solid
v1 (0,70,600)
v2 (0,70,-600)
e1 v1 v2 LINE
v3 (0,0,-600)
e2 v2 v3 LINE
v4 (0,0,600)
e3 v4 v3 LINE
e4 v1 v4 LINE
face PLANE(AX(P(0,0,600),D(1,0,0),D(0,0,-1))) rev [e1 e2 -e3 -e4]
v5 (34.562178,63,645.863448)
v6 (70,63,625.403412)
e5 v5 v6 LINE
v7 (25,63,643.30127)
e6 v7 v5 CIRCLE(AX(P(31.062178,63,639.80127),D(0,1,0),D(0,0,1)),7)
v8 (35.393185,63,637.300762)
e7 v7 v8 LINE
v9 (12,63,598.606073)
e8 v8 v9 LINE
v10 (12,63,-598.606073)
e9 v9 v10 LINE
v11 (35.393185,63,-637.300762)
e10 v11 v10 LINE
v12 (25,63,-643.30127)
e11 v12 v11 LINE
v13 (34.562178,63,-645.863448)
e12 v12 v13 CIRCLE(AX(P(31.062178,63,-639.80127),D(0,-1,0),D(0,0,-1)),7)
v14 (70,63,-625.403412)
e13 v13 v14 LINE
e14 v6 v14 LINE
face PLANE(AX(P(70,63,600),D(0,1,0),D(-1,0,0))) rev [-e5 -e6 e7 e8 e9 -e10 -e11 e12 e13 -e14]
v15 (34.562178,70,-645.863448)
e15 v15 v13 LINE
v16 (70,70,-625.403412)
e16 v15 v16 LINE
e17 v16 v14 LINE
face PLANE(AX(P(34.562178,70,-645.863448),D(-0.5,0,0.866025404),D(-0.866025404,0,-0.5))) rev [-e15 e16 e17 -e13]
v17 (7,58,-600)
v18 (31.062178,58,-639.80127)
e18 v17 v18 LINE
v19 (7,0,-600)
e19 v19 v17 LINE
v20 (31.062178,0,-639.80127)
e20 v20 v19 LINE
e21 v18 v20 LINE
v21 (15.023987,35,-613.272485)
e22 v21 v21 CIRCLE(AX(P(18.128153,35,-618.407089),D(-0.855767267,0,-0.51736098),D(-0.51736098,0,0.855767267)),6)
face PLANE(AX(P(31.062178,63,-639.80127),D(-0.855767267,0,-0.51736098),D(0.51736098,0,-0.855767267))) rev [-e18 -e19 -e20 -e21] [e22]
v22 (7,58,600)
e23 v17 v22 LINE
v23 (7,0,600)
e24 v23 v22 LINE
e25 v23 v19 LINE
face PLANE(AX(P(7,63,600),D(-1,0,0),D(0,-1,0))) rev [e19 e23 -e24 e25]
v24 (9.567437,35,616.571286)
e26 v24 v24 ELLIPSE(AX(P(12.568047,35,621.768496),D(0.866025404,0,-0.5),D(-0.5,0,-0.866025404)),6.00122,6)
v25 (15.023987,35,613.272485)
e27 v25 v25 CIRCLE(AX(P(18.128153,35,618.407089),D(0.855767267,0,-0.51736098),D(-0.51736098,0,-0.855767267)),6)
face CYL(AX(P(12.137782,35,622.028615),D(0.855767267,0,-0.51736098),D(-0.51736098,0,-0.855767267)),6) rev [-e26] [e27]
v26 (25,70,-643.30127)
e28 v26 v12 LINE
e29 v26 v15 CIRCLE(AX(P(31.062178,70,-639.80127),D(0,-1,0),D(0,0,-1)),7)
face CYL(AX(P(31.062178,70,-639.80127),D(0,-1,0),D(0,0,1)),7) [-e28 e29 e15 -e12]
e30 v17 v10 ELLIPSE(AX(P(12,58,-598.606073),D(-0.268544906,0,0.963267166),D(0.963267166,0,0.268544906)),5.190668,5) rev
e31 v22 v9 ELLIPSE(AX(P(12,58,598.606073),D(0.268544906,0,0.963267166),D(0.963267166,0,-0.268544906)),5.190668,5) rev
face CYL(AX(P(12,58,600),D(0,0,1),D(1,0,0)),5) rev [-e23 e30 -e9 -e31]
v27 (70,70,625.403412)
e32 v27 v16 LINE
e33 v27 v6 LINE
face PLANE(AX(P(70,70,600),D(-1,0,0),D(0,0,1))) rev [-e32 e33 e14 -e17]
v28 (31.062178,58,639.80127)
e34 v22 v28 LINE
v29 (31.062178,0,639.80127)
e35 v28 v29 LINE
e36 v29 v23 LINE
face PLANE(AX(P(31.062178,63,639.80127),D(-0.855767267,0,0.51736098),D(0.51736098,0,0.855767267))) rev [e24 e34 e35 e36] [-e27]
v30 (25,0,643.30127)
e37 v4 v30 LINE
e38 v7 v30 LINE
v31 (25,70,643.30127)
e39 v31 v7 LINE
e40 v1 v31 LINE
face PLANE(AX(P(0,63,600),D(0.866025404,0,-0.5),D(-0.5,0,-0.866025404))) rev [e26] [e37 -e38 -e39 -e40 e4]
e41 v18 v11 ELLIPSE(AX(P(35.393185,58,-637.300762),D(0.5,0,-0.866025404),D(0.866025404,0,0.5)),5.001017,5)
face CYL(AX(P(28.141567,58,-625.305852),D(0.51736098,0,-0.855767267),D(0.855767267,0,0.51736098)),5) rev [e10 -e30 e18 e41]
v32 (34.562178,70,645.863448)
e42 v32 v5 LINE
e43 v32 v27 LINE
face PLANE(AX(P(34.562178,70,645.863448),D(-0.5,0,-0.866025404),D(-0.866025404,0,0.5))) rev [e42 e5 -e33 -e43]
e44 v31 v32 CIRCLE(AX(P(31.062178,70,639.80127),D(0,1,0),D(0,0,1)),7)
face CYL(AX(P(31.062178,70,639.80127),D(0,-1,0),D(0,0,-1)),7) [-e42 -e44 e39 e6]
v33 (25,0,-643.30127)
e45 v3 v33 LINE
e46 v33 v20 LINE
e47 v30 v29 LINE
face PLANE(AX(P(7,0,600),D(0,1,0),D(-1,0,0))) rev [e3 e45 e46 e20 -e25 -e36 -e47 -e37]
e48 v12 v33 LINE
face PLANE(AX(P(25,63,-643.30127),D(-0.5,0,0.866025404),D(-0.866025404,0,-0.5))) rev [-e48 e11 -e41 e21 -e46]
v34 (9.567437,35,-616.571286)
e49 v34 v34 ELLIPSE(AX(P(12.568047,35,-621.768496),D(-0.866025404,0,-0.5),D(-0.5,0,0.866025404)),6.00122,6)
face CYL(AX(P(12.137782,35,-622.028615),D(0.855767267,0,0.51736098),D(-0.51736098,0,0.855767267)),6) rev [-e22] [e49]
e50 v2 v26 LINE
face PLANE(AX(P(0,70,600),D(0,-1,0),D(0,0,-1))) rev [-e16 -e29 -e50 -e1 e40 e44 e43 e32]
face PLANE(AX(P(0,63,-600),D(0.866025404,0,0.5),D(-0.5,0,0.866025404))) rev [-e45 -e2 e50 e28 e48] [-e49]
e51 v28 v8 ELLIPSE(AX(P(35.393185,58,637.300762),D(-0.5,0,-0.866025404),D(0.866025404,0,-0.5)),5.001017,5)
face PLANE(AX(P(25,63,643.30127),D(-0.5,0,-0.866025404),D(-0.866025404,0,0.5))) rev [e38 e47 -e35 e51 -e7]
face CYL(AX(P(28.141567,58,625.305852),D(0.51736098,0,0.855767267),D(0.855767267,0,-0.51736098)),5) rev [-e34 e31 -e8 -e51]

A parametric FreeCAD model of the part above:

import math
import FreeCAD as App
import Part
import Sketcher
Q = App.Units.Quantity


def edges_at(feature, points):
    """Names of the edges that pass closest to the given points."""
    edges = feature.Shape.Edges
    near = lambda p: min(range(len(edges)), key=lambda i: edges[i].distToShape(Part.Vertex(*p))[0])
    return sorted({f"Edge{near(p) + 1}" for p in points})


def add_polygon(sketch, points):
    """Adds a closed chain of lines whose ends are joined by coincident constraints."""
    first, n = sketch.GeometryCount, len(points)
    for a, b in zip(points, points[1:] + points[:1]):
        sketch.addGeometry(Part.LineSegment(App.Vector(*a, 0), App.Vector(*b, 0)), False)
    for i in range(n):
        sketch.addConstraint(Sketcher.Constraint("Coincident", first + i, 2, first + (i + 1) % n, 1))

doc = App.newDocument("Part")
body = doc.addObject("PartDesign::Body", "Body")

# Sketch on XY plane
sketch1 = body.newObject("Sketcher::SketchObject", "Sketch")
sketch1.AttachmentSupport = (doc.getObject("XY_Plane"), [""])
sketch1.MapMode = "FlatFace"
add_polygon(sketch1, [(0, 70), (0, 0), (7, 0), (7, 63), (70, 63), (70, 70)])  # lines 0-5
sketch1.addConstraint([
    Sketcher.Constraint("Vertical", 0),
    Sketcher.Constraint("Horizontal", 1),
    Sketcher.Constraint("Vertical", 2),
    Sketcher.Constraint("Horizontal", 3),
    Sketcher.Constraint("Vertical", 4),
    Sketcher.Constraint("Horizontal", 5),
    Sketcher.Constraint("Coincident", 0, 2, -1, 1),
    Sketcher.Constraint("Equal", 5, 0),
    Sketcher.Constraint("Equal", 3, 2),
    Sketcher.Constraint("DistanceX", 1, 1, 1, 2, Q("7 mm")),
    Sketcher.Constraint("DistanceX", 3, 1, 3, 2, Q("63 mm")),
])
pad1 = body.newObject("PartDesign::Pad", "Pad")
pad1.Profile = sketch1
pad1.Length = 600

# Sketch on XZ plane
sketch2 = body.newObject("Sketcher::SketchObject", "Sketch001")
sketch2.AttachmentSupport = (doc.getObject("XZ_Plane"), [""])
sketch2.MapMode = "FlatFace"
add_polygon(sketch2, [(0, 600), (25, 643.30127), (31.062178, 639.80127), (7, 600)])  # lines 0-3
sketch2.addConstraint([
    Sketcher.Constraint("Horizontal", 3),
    Sketcher.Constraint("PointOnObject", 3, 2, -2),
    Sketcher.Constraint("Perpendicular", 0, 1),
    Sketcher.Constraint("DistanceX", 3, 2, 3, 1, Q("7 mm")),
    Sketcher.Constraint("Angle", 0, Q("60 deg")),
    Sketcher.Constraint("Distance", 0, Q("50 mm")),
    Sketcher.Constraint("Distance", 1, Q("7 mm")),
    Sketcher.Constraint("DistanceY", -1, 1, 2, 2, Q("600 mm")),
])
pad2 = body.newObject("PartDesign::Pad", "Pad001")
pad2.Profile = sketch2
pad2.Length = 63
pad2.Reversed = True

# Sketch on XZ plane
sketch3 = body.newObject("Sketcher::SketchObject", "Sketch002")
sketch3.AttachmentSupport = (doc.getObject("XZ_Plane"), [""])
sketch3.MapMode = "FlatFace"
sketch3.AttachmentOffset = App.Placement(App.Vector(0, 0, -63), App.Rotation())
sketch3.addGeometry([
    Part.LineSegment(App.Vector(0, 600, 0), App.Vector(25, 643.30127, 0)),  # 0
    Part.ArcOfCircle(Part.Circle(App.Vector(31.062178, 639.80127, 0), App.Vector(0, 0, 1), 7), math.radians(60), math.radians(150)),  # 1
    Part.LineSegment(App.Vector(34.562178, 645.863448, 0), App.Vector(70, 625.403412, 0)),  # 2
    Part.LineSegment(App.Vector(70, 625.403412, 0), App.Vector(70, 600, 0)),  # 3
    Part.LineSegment(App.Vector(70, 600, 0), App.Vector(0, 600, 0)),  # 4
], False)
sketch3.addConstraint([
    Sketcher.Constraint("Tangent", 0, 2, 1, 2),
    Sketcher.Constraint("Tangent", 1, 1, 2, 1),
    Sketcher.Constraint("Coincident", 2, 2, 3, 1),
    Sketcher.Constraint("Coincident", 3, 2, 4, 1),
    Sketcher.Constraint("Coincident", 4, 2, 0, 1),
    Sketcher.Constraint("Vertical", 3),
    Sketcher.Constraint("Horizontal", 4),
    Sketcher.Constraint("PointOnObject", 4, 2, -2),
    Sketcher.Constraint("Perpendicular", 0, 2),
    Sketcher.Constraint("Radius", 1, Q("7 mm")),
    Sketcher.Constraint("DistanceX", 4, 2, 4, 1, Q("70 mm")),
    Sketcher.Constraint("Angle", 0, Q("60 deg")),
    Sketcher.Constraint("Distance", 0, Q("50 mm")),
    Sketcher.Constraint("DistanceY", -1, 1, 3, 2, Q("600 mm")),
])
pad3 = body.newObject("PartDesign::Pad", "Pad002")
pad3.Profile = sketch3
pad3.Length = 7
pad3.Reversed = True

# Sketch on an angled plane
sketch4 = body.newObject("Sketcher::SketchObject", "Sketch003")
sketch4.Placement = App.Placement(App.Vector(-260.517992, 0, 157.498246), App.Rotation(App.Vector(-0.51736098, 0, -0.855767267), App.Vector(0, 0.999999999, 0), App.Vector(0.855767267, 0, -0.51736098), "ZXY"))
sketch4.addGeometry(Part.Circle(App.Vector(-538.591343, 35, 0), App.Vector(0, 0, 1), 6), False)
sketch4.addConstraint([
    Sketcher.Constraint("Diameter", 0, Q("12 mm")),
    Sketcher.Constraint("DistanceY", -1, 1, 0, 3, Q("35 mm")),
    Sketcher.Constraint("DistanceX", 0, 3, -1, 1, Q("538.591343 mm")),
])
pocket1 = body.newObject("PartDesign::Pocket", "Pocket")
pocket1.Profile = sketch4
pocket1.Length = 7
doc.recompute()

fillet = body.newObject("PartDesign::Fillet", "Fillet")
fillet.Base = (pocket1, edges_at(pocket1, [(7, 63, 300), (19.031, 63, 619.901)]))
fillet.Radius = 5
body2 = doc.addObject("PartDesign::Body", "Body001")
doc.recompute()

body2.BaseFeature = body
doc.recompute()

mirroring = doc.addObject("Part::Mirroring", "Mirroring")
mirroring.Source = body
mirroring.Base = App.Vector(0, 0, 0)
mirroring.Normal = App.Vector(0, 0, 1)
body3 = doc.addObject("PartDesign::Body", "Body002")
body3.BaseFeature = mirroring
boolean = body2.newObject("PartDesign::Boolean", "Boolean")
boolean.Type = "Fuse"
boolean.addObjects([body3])
doc.recompute()
mirroring.Visibility = False

doc.recompute()
